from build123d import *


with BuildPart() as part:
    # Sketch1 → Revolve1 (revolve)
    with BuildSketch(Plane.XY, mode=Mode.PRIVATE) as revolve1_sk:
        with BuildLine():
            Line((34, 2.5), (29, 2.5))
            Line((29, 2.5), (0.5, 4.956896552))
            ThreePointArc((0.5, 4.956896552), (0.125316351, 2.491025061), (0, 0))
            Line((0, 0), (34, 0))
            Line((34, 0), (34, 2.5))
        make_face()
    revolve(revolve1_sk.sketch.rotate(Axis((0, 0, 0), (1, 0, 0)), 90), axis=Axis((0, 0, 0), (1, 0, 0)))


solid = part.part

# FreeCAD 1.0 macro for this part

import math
import FreeCAD as App
import Part
import Sketcher

doc = App.newDocument("Part")
body = doc.addObject("PartDesign::Body", "Body")

# Sketch on XY plane
sketch1 = body.newObject("Sketcher::SketchObject", "Sketch")
sketch1.AttachmentSupport = (doc.getObject("XY_Plane"), [""])
sketch1.MapMode = "FlatFace"
sketch1.addGeometry(Part.LineSegment(App.Vector(34, 2.5, 0), App.Vector(29, 2.5, 0)), False)
sketch1.addGeometry(Part.LineSegment(App.Vector(29, 2.5, 0), App.Vector(0.5, 5, 0)), False)
sketch1.addGeometry(Part.ArcOfCircle(Part.Circle(App.Vector(24.8, 0, 0), App.Vector(0, 0, 1), 24.8), math.radians(168.48), math.radians(180)), False)
sketch1.addGeometry(Part.LineSegment(App.Vector(0, 0, 0), App.Vector(34, 0, 0)), False)
sketch1.addGeometry(Part.LineSegment(App.Vector(34, 0, 0), App.Vector(34, 2.5, 0)), False)
sketch1.addConstraint(Sketcher.Constraint("Coincident", 0, 2, 1, 1))
sketch1.addConstraint(Sketcher.Constraint("Coincident", 1, 2, 2, 1))
sketch1.addConstraint(Sketcher.Constraint("Coincident", 2, 2, 3, 1))
sketch1.addConstraint(Sketcher.Constraint("Coincident", 3, 2, 4, 1))
sketch1.addConstraint(Sketcher.Constraint("Coincident", 4, 2, 0, 1))
sketch1.addConstraint(Sketcher.Constraint("Horizontal", 0))
sketch1.addConstraint(Sketcher.Constraint("Horizontal", 3))
sketch1.addConstraint(Sketcher.Constraint("Vertical", 4))
sketch1.addConstraint(Sketcher.Constraint("Coincident", 2, 2, -1, 1))
sketch1.addConstraint(Sketcher.Constraint("PointOnObject", 2, 3, -1))
sketch1.addConstraint(Sketcher.Constraint("DistanceX", 0, 2, 0, 1, 5.0))
sketch1.addConstraint(Sketcher.Constraint("DistanceX", 3, 1, 3, 2, 34.0))
sketch1.addConstraint(Sketcher.Constraint("DistanceY", 4, 1, 4, 2, 2.5))
sketch1.addConstraint(Sketcher.Constraint("DistanceX", -1, 1, 1, 2, 0.5))
sketch1.addConstraint(Sketcher.Constraint("Radius", 2, 24.820823))
revolution = body.newObject("PartDesign::Revolution", "Revolution")
revolution.Profile = sketch1
revolution.ReferenceAxis = (sketch1, ["H_Axis"])
revolution.Angle = 360

doc.recompute()
